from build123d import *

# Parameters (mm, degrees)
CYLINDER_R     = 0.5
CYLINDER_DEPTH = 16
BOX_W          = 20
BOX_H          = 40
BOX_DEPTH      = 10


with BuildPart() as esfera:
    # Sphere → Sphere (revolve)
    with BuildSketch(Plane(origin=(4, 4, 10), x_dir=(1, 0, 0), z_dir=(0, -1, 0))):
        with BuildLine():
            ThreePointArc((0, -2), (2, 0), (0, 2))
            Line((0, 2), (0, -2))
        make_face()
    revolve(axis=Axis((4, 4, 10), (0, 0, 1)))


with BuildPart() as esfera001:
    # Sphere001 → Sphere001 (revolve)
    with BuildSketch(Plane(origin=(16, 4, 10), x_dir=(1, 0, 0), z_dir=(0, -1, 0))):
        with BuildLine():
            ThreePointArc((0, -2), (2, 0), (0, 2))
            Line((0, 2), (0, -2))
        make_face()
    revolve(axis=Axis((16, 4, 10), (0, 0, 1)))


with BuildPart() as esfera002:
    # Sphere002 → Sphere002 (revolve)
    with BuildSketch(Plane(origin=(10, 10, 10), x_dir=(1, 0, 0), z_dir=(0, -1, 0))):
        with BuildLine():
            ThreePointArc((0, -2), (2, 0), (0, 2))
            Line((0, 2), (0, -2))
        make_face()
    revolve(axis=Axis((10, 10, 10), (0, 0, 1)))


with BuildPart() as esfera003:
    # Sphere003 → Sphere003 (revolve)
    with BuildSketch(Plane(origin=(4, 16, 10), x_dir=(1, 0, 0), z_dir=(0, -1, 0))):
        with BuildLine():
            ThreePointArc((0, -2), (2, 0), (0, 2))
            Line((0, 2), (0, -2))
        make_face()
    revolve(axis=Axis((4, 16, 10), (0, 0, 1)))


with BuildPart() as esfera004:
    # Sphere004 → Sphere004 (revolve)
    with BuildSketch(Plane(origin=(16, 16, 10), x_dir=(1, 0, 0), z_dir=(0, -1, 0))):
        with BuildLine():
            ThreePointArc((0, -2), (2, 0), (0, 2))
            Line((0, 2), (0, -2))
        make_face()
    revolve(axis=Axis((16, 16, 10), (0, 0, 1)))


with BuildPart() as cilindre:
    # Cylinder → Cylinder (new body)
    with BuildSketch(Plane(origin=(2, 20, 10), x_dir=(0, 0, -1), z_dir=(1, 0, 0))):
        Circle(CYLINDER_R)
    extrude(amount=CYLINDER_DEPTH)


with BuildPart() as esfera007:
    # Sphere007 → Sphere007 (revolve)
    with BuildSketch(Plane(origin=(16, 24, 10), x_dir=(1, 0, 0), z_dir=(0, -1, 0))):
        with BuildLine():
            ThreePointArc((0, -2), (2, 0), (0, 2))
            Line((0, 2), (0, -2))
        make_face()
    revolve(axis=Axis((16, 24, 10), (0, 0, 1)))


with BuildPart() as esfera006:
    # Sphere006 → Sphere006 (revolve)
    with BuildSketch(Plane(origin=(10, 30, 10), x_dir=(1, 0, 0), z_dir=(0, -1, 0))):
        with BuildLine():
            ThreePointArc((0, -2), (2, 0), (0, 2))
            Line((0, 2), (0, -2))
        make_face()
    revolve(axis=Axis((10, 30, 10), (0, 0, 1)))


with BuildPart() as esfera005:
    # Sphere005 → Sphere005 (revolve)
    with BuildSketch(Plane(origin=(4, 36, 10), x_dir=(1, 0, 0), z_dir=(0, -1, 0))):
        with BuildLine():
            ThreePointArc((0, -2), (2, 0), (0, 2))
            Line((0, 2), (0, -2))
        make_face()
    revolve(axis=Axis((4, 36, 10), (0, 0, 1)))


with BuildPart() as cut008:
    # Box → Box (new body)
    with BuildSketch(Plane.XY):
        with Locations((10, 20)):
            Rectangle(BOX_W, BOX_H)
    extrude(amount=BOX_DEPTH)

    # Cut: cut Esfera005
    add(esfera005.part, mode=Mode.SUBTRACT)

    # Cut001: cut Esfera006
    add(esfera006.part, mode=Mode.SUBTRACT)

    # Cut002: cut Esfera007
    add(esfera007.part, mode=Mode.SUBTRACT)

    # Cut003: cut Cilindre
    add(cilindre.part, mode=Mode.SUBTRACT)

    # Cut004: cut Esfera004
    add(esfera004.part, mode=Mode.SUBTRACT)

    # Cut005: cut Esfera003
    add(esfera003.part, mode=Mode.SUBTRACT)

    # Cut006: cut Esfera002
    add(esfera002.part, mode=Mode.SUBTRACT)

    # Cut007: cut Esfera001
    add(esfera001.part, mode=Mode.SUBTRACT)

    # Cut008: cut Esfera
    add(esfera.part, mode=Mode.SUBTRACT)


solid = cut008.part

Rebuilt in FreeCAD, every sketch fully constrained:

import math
import FreeCAD as App
import Part
import Sketcher
Q = App.Units.Quantity

doc = App.newDocument("Part")
body = doc.addObject("PartDesign::Body", "Body")

# Sketch on XZ plane
sketch1 = body.newObject("Sketcher::SketchObject", "Sketch")
sketch1.AttachmentSupport = (doc.getObject("XZ_Plane"), [""])
sketch1.MapMode = "FlatFace"
sketch1.AttachmentOffset = App.Placement(App.Vector(0, 0, -4), App.Rotation())
sketch1.addGeometry([
    Part.ArcOfCircle(Part.Circle(App.Vector(4, 10, 0), App.Vector(0, 0, 1), 2), math.radians(-90), math.radians(90)),
    Part.LineSegment(App.Vector(4, 12, 0), App.Vector(4, 8, 0)),
], False)
sketch1.addGeometry(Part.LineSegment(App.Vector(4, 8, 0), App.Vector(4, 12, 0)), True)  # axis
sketch1.addConstraint([
    Sketcher.Constraint("Coincident", 0, 1, 1, 2),
    Sketcher.Constraint("Coincident", 1, 1, 0, 2),
    Sketcher.Constraint("Vertical", 1),
    Sketcher.Constraint("Vertical", 2),
    Sketcher.Constraint("Coincident", 2, 1, 0, 1),
    Sketcher.Constraint("Equal", 1, 2),
    Sketcher.Constraint("Radius", 0, Q("2 mm")),
    Sketcher.Constraint("DistanceX", -1, 1, 0, 3, Q("4 mm")),
    Sketcher.Constraint("DistanceY", -1, 1, 0, 3, Q("10 mm")),
    Sketcher.Constraint("DistanceX", -1, 1, 0, 1, Q("4 mm")),
])
revolution = body.newObject("PartDesign::Revolution", "Revolution")
revolution.Profile = sketch1
revolution.ReferenceAxis = (sketch1, ["Axis0"])
revolution.Angle = 360
body2 = doc.addObject("PartDesign::Body", "Body001")

# Sketch on XZ plane
sketch2 = body2.newObject("Sketcher::SketchObject", "Sketch001")
sketch2.AttachmentSupport = (doc.getObject("XZ_Plane001"), [""])
sketch2.MapMode = "FlatFace"
sketch2.AttachmentOffset = App.Placement(App.Vector(0, 0, -4), App.Rotation())
sketch2.addGeometry([
    Part.ArcOfCircle(Part.Circle(App.Vector(16, 10, 0), App.Vector(0, 0, 1), 2), math.radians(-90), math.radians(90)),
    Part.LineSegment(App.Vector(16, 12, 0), App.Vector(16, 8, 0)),
], False)
sketch2.addGeometry(Part.LineSegment(App.Vector(16, 8, 0), App.Vector(16, 12, 0)), True)  # axis
sketch2.addConstraint([
    Sketcher.Constraint("Coincident", 0, 1, 1, 2),
    Sketcher.Constraint("Coincident", 1, 1, 0, 2),
    Sketcher.Constraint("Vertical", 1),
    Sketcher.Constraint("Vertical", 2),
    Sketcher.Constraint("Coincident", 2, 1, 0, 1),
    Sketcher.Constraint("Equal", 1, 2),
    Sketcher.Constraint("Radius", 0, Q("2 mm")),
    Sketcher.Constraint("DistanceX", -1, 1, 0, 3, Q("16 mm")),
    Sketcher.Constraint("DistanceY", -1, 1, 0, 3, Q("10 mm")),
    Sketcher.Constraint("DistanceX", -1, 1, 0, 1, Q("16 mm")),
])
revolution2 = body2.newObject("PartDesign::Revolution", "Revolution001")
revolution2.Profile = sketch2
revolution2.ReferenceAxis = (sketch2, ["Axis0"])
revolution2.Angle = 360
body3 = doc.addObject("PartDesign::Body", "Body002")

# Sketch on XZ plane
sketch3 = body3.newObject("Sketcher::SketchObject", "Sketch002")
sketch3.AttachmentSupport = (doc.getObject("XZ_Plane002"), [""])
sketch3.MapMode = "FlatFace"
sketch3.AttachmentOffset = App.Placement(App.Vector(0, 0, -10), App.Rotation())
sketch3.addGeometry([
    Part.ArcOfCircle(Part.Circle(App.Vector(10, 10, 0), App.Vector(0, 0, 1), 2), math.radians(-90), math.radians(90)),
    Part.LineSegment(App.Vector(10, 12, 0), App.Vector(10, 8, 0)),
], False)
sketch3.addGeometry(Part.LineSegment(App.Vector(10, 8, 0), App.Vector(10, 12, 0)), True)  # axis
sketch3.addConstraint([
    Sketcher.Constraint("Coincident", 0, 1, 1, 2),
    Sketcher.Constraint("Coincident", 1, 1, 0, 2),
    Sketcher.Constraint("Vertical", 1),
    Sketcher.Constraint("Vertical", 2),
    Sketcher.Constraint("Coincident", 2, 1, 0, 1),
    Sketcher.Constraint("Equal", 1, 2),
    Sketcher.Constraint("Radius", 0, Q("2 mm")),
    Sketcher.Constraint("DistanceX", -1, 1, 0, 3, Q("10 mm")),
    Sketcher.Constraint("DistanceY", -1, 1, 0, 3, Q("10 mm")),
    Sketcher.Constraint("DistanceX", -1, 1, 0, 1, Q("10 mm")),
])
revolution3 = body3.newObject("PartDesign::Revolution", "Revolution002")
revolution3.Profile = sketch3
revolution3.ReferenceAxis = (sketch3, ["Axis0"])
revolution3.Angle = 360
body4 = doc.addObject("PartDesign::Body", "Body003")

# Sketch on XZ plane
sketch4 = body4.newObject("Sketcher::SketchObject", "Sketch003")
sketch4.AttachmentSupport = (doc.getObject("XZ_Plane003"), [""])
sketch4.MapMode = "FlatFace"
sketch4.AttachmentOffset = App.Placement(App.Vector(0, 0, -16), App.Rotation())
sketch4.addGeometry([
    Part.ArcOfCircle(Part.Circle(App.Vector(4, 10, 0), App.Vector(0, 0, 1), 2), math.radians(-90), math.radians(90)),
    Part.LineSegment(App.Vector(4, 12, 0), App.Vector(4, 8, 0)),
], False)
sketch4.addGeometry(Part.LineSegment(App.Vector(4, 8, 0), App.Vector(4, 12, 0)), True)  # axis
sketch4.addConstraint([
    Sketcher.Constraint("Coincident", 0, 1, 1, 2),
    Sketcher.Constraint("Coincident", 1, 1, 0, 2),
    Sketcher.Constraint("Vertical", 1),
    Sketcher.Constraint("Vertical", 2),
    Sketcher.Constraint("Coincident", 2, 1, 0, 1),
    Sketcher.Constraint("Equal", 1, 2),
    Sketcher.Constraint("Radius", 0, Q("2 mm")),
    Sketcher.Constraint("DistanceX", -1, 1, 0, 3, Q("4 mm")),
    Sketcher.Constraint("DistanceY", -1, 1, 0, 3, Q("10 mm")),
    Sketcher.Constraint("DistanceX", -1, 1, 0, 1, Q("4 mm")),
])
revolution4 = body4.newObject("PartDesign::Revolution", "Revolution003")
revolution4.Profile = sketch4
revolution4.ReferenceAxis = (sketch4, ["Axis0"])
revolution4.Angle = 360
body5 = doc.addObject("PartDesign::Body", "Body004")

# Sketch on XZ plane
sketch5 = body5.newObject("Sketcher::SketchObject", "Sketch004")
sketch5.AttachmentSupport = (doc.getObject("XZ_Plane004"), [""])
sketch5.MapMode = "FlatFace"
sketch5.AttachmentOffset = App.Placement(App.Vector(0, 0, -16), App.Rotation())
sketch5.addGeometry([
    Part.ArcOfCircle(Part.Circle(App.Vector(16, 10, 0), App.Vector(0, 0, 1), 2), math.radians(-90), math.radians(90)),
    Part.LineSegment(App.Vector(16, 12, 0), App.Vector(16, 8, 0)),
], False)
sketch5.addGeometry(Part.LineSegment(App.Vector(16, 8, 0), App.Vector(16, 12, 0)), True)  # axis
sketch5.addConstraint([
    Sketcher.Constraint("Coincident", 0, 1, 1, 2),
    Sketcher.Constraint("Coincident", 1, 1, 0, 2),
    Sketcher.Constraint("Vertical", 1),
    Sketcher.Constraint("Vertical", 2),
    Sketcher.Constraint("Coincident", 2, 1, 0, 1),
    Sketcher.Constraint("Equal", 1, 2),
    Sketcher.Constraint("Radius", 0, Q("2 mm")),
    Sketcher.Constraint("DistanceX", -1, 1, 0, 3, Q("16 mm")),
    Sketcher.Constraint("DistanceY", -1, 1, 0, 3, Q("10 mm")),
    Sketcher.Constraint("DistanceX", -1, 1, 0, 1, Q("16 mm")),
])
revolution5 = body5.newObject("PartDesign::Revolution", "Revolution004")
revolution5.Profile = sketch5
revolution5.ReferenceAxis = (sketch5, ["Axis0"])
revolution5.Angle = 360
body6 = doc.addObject("PartDesign::Body", "Body005")

# Sketch on YZ plane
sketch6 = body6.newObject("Sketcher::SketchObject", "Sketch005")
sketch6.AttachmentSupport = (doc.getObject("YZ_Plane005"), [""])
sketch6.MapMode = "FlatFace"
sketch6.AttachmentOffset = App.Placement(App.Vector(0, 0, 2), App.Rotation())
sketch6.addGeometry(Part.Circle(App.Vector(20, 10, 0), App.Vector(0, 0, 1), 0.5), False)
sketch6.addConstraint([
    Sketcher.Constraint("Diameter", 0, Q("1 mm")),
    Sketcher.Constraint("DistanceX", -1, 1, 0, 3, Q("20 mm")),
    Sketcher.Constraint("DistanceY", -1, 1, 0, 3, Q("10 mm")),
])
pad1 = body6.newObject("PartDesign::Pad", "Pad")
pad1.Profile = sketch6
pad1.Length = 16
body7 = doc.addObject("PartDesign::Body", "Body006")

# Sketch on XZ plane
sketch7 = body7.newObject("Sketcher::SketchObject", "Sketch006")
sketch7.AttachmentSupport = (doc.getObject("XZ_Plane006"), [""])
sketch7.MapMode = "FlatFace"
sketch7.AttachmentOffset = App.Placement(App.Vector(0, 0, -24), App.Rotation())
sketch7.addGeometry([
    Part.ArcOfCircle(Part.Circle(App.Vector(16, 10, 0), App.Vector(0, 0, 1), 2), math.radians(-90), math.radians(90)),
    Part.LineSegment(App.Vector(16, 12, 0), App.Vector(16, 8, 0)),
], False)
sketch7.addGeometry(Part.LineSegment(App.Vector(16, 8, 0), App.Vector(16, 12, 0)), True)  # axis
sketch7.addConstraint([
    Sketcher.Constraint("Coincident", 0, 1, 1, 2),
    Sketcher.Constraint("Coincident", 1, 1, 0, 2),
    Sketcher.Constraint("Vertical", 1),
    Sketcher.Constraint("Vertical", 2),
    Sketcher.Constraint("Coincident", 2, 1, 0, 1),
    Sketcher.Constraint("Equal", 1, 2),
    Sketcher.Constraint("Radius", 0, Q("2 mm")),
    Sketcher.Constraint("DistanceX", -1, 1, 0, 3, Q("16 mm")),
    Sketcher.Constraint("DistanceY", -1, 1, 0, 3, Q("10 mm")),
    Sketcher.Constraint("DistanceX", -1, 1, 0, 1, Q("16 mm")),
])
revolution6 = body7.newObject("PartDesign::Revolution", "Revolution005")
revolution6.Profile = sketch7
revolution6.ReferenceAxis = (sketch7, ["Axis0"])
revolution6.Angle = 360
body8 = doc.addObject("PartDesign::Body", "Body007")

# Sketch on XZ plane
sketch8 = body8.newObject("Sketcher::SketchObject", "Sketch007")
sketch8.AttachmentSupport = (doc.getObject("XZ_Plane007"), [""])
sketch8.MapMode = "FlatFace"
sketch8.AttachmentOffset = App.Placement(App.Vector(0, 0, -30), App.Rotation())
sketch8.addGeometry([
    Part.ArcOfCircle(Part.Circle(App.Vector(10, 10, 0), App.Vector(0, 0, 1), 2), math.radians(-90), math.radians(90)),
    Part.LineSegment(App.Vector(10, 12, 0), App.Vector(10, 8, 0)),
], False)
sketch8.addGeometry(Part.LineSegment(App.Vector(10, 8, 0), App.Vector(10, 12, 0)), True)  # axis
sketch8.addConstraint([
    Sketcher.Constraint("Coincident", 0, 1, 1, 2),
    Sketcher.Constraint("Coincident", 1, 1, 0, 2),
    Sketcher.Constraint("Vertical", 1),
    Sketcher.Constraint("Vertical", 2),
    Sketcher.Constraint("Coincident", 2, 1, 0, 1),
    Sketcher.Constraint("Equal", 1, 2),
    Sketcher.Constraint("Radius", 0, Q("2 mm")),
    Sketcher.Constraint("DistanceX", -1, 1, 0, 3, Q("10 mm")),
    Sketcher.Constraint("DistanceY", -1, 1, 0, 3, Q("10 mm")),
    Sketcher.Constraint("DistanceX", -1, 1, 0, 1, Q("10 mm")),
])
revolution7 = body8.newObject("PartDesign::Revolution", "Revolution006")
revolution7.Profile = sketch8
revolution7.ReferenceAxis = (sketch8, ["Axis0"])
revolution7.Angle = 360
body9 = doc.addObject("PartDesign::Body", "Body008")

# Sketch on XZ plane
sketch9 = body9.newObject("Sketcher::SketchObject", "Sketch008")
sketch9.AttachmentSupport = (doc.getObject("XZ_Plane008"), [""])
sketch9.MapMode = "FlatFace"
sketch9.AttachmentOffset = App.Placement(App.Vector(0, 0, -36), App.Rotation())
sketch9.addGeometry([
    Part.ArcOfCircle(Part.Circle(App.Vector(4, 10, 0), App.Vector(0, 0, 1), 2), math.radians(-90), math.radians(90)),
    Part.LineSegment(App.Vector(4, 12, 0), App.Vector(4, 8, 0)),
], False)
sketch9.addGeometry(Part.LineSegment(App.Vector(4, 8, 0), App.Vector(4, 12, 0)), True)  # axis
sketch9.addConstraint([
    Sketcher.Constraint("Coincident", 0, 1, 1, 2),
    Sketcher.Constraint("Coincident", 1, 1, 0, 2),
    Sketcher.Constraint("Vertical", 1),
    Sketcher.Constraint("Vertical", 2),
    Sketcher.Constraint("Coincident", 2, 1, 0, 1),
    Sketcher.Constraint("Equal", 1, 2),
    Sketcher.Constraint("Radius", 0, Q("2 mm")),
    Sketcher.Constraint("DistanceX", -1, 1, 0, 3, Q("4 mm")),
    Sketcher.Constraint("DistanceY", -1, 1, 0, 3, Q("10 mm")),
    Sketcher.Constraint("DistanceX", -1, 1, 0, 1, Q("4 mm")),
])
revolution8 = body9.newObject("PartDesign::Revolution", "Revolution007")
revolution8.Profile = sketch9
revolution8.ReferenceAxis = (sketch9, ["Axis0"])
revolution8.Angle = 360
body10 = doc.addObject("PartDesign::Body", "Body009")

# Sketch on XY plane
sketch10 = body10.newObject("Sketcher::SketchObject", "Sketch009")
sketch10.AttachmentSupport = (doc.getObject("XY_Plane009"), [""])
sketch10.MapMode = "FlatFace"
sketch10.addGeometry([
    Part.LineSegment(App.Vector(0, 40, 0), App.Vector(0, 0, 0)),
    Part.LineSegment(App.Vector(0, 0, 0), App.Vector(20, 0, 0)),
    Part.LineSegment(App.Vector(20, 0, 0), App.Vector(20, 40, 0)),
    Part.LineSegment(App.Vector(20, 40, 0), App.Vector(0, 40, 0)),
], False)
sketch10.addConstraint([
    Sketcher.Constraint("Coincident", 0, 2, 1, 1),
    Sketcher.Constraint("Coincident", 1, 2, 2, 1),
    Sketcher.Constraint("Coincident", 2, 2, 3, 1),
    Sketcher.Constraint("Coincident", 3, 2, 0, 1),
    Sketcher.Constraint("Vertical", 0),
    Sketcher.Constraint("Horizontal", 1),
    Sketcher.Constraint("Vertical", 2),
    Sketcher.Constraint("Horizontal", 3),
    Sketcher.Constraint("Coincident", 0, 2, -1, 1),
    Sketcher.Constraint("DistanceX", 1, 1, 1, 2, Q("20 mm")),
    Sketcher.Constraint("DistanceY", 0, 2, 0, 1, Q("40 mm")),
])
pad2 = body10.newObject("PartDesign::Pad", "Pad001")
pad2.Profile = sketch10
pad2.Length = 10
doc.recompute()

boolean = body10.newObject("PartDesign::Boolean", "Boolean")
boolean.Type = "Cut"
boolean.addObjects([body9])
doc.recompute()

boolean2 = body10.newObject("PartDesign::Boolean", "Boolean001")
boolean2.Type = "Cut"
boolean2.addObjects([body8])
doc.recompute()

boolean3 = body10.newObject("PartDesign::Boolean", "Boolean002")
boolean3.Type = "Cut"
boolean3.addObjects([body7])
doc.recompute()

boolean4 = body10.newObject("PartDesign::Boolean", "Boolean003")
boolean4.Type = "Cut"
boolean4.addObjects([body6])
doc.recompute()

boolean5 = body10.newObject("PartDesign::Boolean", "Boolean004")
boolean5.Type = "Cut"
boolean5.addObjects([body5])
doc.recompute()

boolean6 = body10.newObject("PartDesign::Boolean", "Boolean005")
boolean6.Type = "Cut"
boolean6.addObjects([body4])
doc.recompute()

boolean7 = body10.newObject("PartDesign::Boolean", "Boolean006")
boolean7.Type = "Cut"
boolean7.addObjects([body3])
doc.recompute()

boolean8 = body10.newObject("PartDesign::Boolean", "Boolean007")
boolean8.Type = "Cut"
boolean8.addObjects([body2])
doc.recompute()

boolean9 = body10.newObject("PartDesign::Boolean", "Boolean008")
boolean9.Type = "Cut"
boolean9.addObjects([body])

doc.recompute()
